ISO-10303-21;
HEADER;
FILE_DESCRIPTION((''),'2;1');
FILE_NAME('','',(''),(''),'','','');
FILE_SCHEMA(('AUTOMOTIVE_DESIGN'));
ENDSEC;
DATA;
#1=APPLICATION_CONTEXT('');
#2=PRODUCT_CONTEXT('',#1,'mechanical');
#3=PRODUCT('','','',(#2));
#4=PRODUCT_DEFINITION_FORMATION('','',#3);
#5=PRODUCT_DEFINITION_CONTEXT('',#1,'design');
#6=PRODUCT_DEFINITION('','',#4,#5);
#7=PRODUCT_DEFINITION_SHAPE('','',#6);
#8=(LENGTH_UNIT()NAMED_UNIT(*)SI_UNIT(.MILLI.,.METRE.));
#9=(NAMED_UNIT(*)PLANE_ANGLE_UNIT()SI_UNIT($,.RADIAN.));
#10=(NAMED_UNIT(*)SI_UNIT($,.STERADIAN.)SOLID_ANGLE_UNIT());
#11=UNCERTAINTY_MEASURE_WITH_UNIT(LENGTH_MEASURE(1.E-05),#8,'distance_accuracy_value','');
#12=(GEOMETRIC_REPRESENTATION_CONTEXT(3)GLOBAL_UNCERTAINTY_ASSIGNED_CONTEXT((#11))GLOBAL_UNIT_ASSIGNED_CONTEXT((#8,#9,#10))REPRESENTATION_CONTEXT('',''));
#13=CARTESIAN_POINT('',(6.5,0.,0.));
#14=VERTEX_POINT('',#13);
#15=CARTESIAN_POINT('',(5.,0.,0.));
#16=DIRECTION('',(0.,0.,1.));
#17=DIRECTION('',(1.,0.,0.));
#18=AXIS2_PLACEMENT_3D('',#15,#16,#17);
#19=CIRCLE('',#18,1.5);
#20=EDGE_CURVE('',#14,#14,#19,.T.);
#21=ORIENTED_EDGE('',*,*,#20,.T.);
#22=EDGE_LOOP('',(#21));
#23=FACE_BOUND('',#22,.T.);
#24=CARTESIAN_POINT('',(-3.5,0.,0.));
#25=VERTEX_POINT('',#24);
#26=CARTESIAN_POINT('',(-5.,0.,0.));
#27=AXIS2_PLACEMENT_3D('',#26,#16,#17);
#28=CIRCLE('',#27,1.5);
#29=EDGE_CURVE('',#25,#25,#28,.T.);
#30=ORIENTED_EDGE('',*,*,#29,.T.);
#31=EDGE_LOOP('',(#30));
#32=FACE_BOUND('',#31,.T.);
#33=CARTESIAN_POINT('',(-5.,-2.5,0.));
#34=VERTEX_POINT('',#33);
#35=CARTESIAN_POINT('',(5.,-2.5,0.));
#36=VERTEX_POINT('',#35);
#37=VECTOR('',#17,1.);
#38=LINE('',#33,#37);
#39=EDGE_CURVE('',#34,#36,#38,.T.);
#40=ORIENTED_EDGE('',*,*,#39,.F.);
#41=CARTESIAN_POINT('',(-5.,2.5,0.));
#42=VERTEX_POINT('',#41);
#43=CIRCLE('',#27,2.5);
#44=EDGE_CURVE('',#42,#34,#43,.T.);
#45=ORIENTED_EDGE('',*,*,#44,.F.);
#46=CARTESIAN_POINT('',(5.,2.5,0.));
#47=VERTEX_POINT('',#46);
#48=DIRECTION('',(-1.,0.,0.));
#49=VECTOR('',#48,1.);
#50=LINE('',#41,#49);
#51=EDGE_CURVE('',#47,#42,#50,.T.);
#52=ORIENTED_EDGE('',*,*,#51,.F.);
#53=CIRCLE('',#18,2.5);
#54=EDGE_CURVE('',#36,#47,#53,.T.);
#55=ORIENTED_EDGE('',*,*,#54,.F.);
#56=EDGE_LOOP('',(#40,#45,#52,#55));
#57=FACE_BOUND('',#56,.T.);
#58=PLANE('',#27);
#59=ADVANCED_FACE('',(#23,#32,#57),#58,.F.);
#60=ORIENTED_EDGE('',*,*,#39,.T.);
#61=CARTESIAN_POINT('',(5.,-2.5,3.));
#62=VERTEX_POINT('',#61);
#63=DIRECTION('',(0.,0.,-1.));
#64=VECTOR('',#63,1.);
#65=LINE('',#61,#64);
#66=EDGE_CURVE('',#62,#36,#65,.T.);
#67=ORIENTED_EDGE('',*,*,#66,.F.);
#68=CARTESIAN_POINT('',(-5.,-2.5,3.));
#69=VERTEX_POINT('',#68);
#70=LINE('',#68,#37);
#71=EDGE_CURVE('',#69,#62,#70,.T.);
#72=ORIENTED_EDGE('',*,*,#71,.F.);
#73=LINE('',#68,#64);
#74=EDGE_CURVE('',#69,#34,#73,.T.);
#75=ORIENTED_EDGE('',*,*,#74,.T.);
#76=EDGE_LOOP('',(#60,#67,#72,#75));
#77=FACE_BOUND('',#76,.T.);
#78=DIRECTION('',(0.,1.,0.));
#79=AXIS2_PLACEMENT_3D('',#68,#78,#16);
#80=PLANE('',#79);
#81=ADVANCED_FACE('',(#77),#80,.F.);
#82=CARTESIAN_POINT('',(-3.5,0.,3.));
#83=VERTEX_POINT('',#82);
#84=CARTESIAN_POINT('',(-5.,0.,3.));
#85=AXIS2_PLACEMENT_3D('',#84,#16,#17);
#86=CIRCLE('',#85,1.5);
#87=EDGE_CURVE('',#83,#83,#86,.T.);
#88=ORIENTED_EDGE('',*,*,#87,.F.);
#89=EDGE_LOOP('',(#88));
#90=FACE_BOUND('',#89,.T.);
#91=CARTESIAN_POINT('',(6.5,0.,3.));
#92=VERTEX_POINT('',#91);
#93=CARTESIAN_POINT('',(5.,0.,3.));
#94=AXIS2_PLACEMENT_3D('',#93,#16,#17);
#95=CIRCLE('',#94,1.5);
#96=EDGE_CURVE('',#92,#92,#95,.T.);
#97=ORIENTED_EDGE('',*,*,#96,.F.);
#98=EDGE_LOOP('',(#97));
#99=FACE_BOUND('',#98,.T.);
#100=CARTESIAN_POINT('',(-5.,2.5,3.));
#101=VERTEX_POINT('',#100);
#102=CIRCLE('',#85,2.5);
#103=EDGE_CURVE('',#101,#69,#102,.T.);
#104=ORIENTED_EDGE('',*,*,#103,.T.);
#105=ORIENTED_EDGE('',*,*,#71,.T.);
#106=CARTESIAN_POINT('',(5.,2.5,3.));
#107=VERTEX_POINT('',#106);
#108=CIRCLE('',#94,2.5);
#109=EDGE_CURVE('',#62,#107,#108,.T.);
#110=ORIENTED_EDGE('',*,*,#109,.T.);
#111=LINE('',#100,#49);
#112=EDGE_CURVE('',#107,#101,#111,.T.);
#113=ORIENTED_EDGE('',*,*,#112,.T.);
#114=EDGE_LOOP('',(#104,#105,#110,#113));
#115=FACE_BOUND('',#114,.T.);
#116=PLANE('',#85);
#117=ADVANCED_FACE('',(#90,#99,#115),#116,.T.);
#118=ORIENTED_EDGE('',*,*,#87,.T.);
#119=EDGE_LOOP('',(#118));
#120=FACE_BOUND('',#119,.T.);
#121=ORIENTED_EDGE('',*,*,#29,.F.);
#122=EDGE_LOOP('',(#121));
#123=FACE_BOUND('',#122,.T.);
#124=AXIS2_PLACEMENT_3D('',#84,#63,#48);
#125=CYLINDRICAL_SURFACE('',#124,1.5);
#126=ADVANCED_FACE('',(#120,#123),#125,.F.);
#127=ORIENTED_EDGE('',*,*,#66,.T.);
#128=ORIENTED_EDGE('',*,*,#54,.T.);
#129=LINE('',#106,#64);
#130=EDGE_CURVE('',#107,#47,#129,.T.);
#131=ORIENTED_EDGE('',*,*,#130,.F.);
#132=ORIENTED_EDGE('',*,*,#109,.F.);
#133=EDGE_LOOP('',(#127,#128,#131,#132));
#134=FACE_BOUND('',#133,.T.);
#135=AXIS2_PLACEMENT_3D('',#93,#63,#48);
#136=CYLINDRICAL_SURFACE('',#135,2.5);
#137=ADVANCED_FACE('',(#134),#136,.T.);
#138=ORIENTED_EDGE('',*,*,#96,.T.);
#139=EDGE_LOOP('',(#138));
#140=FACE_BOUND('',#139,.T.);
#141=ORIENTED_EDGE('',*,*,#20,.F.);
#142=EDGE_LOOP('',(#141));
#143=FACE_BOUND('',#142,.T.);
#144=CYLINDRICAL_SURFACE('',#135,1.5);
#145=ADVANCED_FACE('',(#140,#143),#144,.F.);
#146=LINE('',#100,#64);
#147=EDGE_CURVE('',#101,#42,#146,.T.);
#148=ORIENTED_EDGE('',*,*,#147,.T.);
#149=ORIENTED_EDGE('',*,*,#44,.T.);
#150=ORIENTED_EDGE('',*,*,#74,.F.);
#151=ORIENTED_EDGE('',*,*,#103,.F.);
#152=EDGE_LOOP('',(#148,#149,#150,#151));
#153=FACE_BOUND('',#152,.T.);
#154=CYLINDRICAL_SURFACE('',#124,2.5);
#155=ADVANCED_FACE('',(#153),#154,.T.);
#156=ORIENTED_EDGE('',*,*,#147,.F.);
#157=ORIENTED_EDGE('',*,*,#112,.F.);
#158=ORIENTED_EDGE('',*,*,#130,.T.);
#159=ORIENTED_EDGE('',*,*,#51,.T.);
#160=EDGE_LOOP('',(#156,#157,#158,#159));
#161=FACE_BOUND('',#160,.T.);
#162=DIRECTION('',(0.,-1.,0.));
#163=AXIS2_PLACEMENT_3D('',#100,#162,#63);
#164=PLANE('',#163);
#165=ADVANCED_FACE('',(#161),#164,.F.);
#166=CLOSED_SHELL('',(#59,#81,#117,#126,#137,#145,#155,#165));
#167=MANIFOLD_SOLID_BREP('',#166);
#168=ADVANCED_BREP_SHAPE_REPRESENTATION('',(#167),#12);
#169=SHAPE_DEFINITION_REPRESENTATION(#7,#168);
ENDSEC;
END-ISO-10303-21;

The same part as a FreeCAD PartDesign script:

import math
import FreeCAD as App
import Part
import Sketcher

V = App.Vector

doc = App.newDocument("Part")
body = doc.addObject("PartDesign::Body", "Body")

sketch1 = body.newObject("Sketcher::SketchObject", "Sketch")
sketch1.AttachmentSupport = (doc.getObject("XY_Plane"), [""])
sketch1.MapMode = "FlatFace"
sketch1.addGeometry([
    Part.LineSegment(V(5, 2.5, 0), V(-5, 2.5, 0)),
    Part.ArcOfCircle(Part.Circle(V(-5, 0, 0), V(0, 0, 1), 2.5), math.radians(90), math.radians(270)),
    Part.LineSegment(V(-5, -2.5, 0), V(5, -2.5, 0)),
    Part.ArcOfCircle(Part.Circle(V(5, 0, 0), V(0, 0, 1), 2.5), math.radians(-90), math.radians(90)),
    Part.Circle(V(5, 0, 0), V(0, 0, 1), 1.5),
    Part.Circle(V(-5, 0, 0), V(0, 0, 1), 1.5),
], False)
sketch1.addConstraint([
    Sketcher.Constraint("Tangent", 0, 2, 1, 1),
    Sketcher.Constraint("Tangent", 1, 2, 2, 1),
    Sketcher.Constraint("Tangent", 2, 2, 3, 1),
    Sketcher.Constraint("Tangent", 3, 2, 0, 1),
    Sketcher.Constraint("Horizontal", 0),
    Sketcher.Constraint("Horizontal", 2),
    Sketcher.Constraint("Coincident", 4, 3, 3, 3),
    Sketcher.Constraint("Coincident", 5, 3, 1, 3),
    Sketcher.Constraint("Equal", 4, 5),
    Sketcher.Constraint("Symmetric", 1, 3, 3, 3, -1, 1),
    Sketcher.Constraint("Diameter", 4, 3.0),
    Sketcher.Constraint("Radius", 1, 2.5),
    Sketcher.Constraint("DistanceX", 0, 2, 0, 1, 10.0),
])
pad1 = body.newObject("PartDesign::Pad", "Pad")
pad1.Profile = sketch1
pad1.Length = 3

doc.recompute()
